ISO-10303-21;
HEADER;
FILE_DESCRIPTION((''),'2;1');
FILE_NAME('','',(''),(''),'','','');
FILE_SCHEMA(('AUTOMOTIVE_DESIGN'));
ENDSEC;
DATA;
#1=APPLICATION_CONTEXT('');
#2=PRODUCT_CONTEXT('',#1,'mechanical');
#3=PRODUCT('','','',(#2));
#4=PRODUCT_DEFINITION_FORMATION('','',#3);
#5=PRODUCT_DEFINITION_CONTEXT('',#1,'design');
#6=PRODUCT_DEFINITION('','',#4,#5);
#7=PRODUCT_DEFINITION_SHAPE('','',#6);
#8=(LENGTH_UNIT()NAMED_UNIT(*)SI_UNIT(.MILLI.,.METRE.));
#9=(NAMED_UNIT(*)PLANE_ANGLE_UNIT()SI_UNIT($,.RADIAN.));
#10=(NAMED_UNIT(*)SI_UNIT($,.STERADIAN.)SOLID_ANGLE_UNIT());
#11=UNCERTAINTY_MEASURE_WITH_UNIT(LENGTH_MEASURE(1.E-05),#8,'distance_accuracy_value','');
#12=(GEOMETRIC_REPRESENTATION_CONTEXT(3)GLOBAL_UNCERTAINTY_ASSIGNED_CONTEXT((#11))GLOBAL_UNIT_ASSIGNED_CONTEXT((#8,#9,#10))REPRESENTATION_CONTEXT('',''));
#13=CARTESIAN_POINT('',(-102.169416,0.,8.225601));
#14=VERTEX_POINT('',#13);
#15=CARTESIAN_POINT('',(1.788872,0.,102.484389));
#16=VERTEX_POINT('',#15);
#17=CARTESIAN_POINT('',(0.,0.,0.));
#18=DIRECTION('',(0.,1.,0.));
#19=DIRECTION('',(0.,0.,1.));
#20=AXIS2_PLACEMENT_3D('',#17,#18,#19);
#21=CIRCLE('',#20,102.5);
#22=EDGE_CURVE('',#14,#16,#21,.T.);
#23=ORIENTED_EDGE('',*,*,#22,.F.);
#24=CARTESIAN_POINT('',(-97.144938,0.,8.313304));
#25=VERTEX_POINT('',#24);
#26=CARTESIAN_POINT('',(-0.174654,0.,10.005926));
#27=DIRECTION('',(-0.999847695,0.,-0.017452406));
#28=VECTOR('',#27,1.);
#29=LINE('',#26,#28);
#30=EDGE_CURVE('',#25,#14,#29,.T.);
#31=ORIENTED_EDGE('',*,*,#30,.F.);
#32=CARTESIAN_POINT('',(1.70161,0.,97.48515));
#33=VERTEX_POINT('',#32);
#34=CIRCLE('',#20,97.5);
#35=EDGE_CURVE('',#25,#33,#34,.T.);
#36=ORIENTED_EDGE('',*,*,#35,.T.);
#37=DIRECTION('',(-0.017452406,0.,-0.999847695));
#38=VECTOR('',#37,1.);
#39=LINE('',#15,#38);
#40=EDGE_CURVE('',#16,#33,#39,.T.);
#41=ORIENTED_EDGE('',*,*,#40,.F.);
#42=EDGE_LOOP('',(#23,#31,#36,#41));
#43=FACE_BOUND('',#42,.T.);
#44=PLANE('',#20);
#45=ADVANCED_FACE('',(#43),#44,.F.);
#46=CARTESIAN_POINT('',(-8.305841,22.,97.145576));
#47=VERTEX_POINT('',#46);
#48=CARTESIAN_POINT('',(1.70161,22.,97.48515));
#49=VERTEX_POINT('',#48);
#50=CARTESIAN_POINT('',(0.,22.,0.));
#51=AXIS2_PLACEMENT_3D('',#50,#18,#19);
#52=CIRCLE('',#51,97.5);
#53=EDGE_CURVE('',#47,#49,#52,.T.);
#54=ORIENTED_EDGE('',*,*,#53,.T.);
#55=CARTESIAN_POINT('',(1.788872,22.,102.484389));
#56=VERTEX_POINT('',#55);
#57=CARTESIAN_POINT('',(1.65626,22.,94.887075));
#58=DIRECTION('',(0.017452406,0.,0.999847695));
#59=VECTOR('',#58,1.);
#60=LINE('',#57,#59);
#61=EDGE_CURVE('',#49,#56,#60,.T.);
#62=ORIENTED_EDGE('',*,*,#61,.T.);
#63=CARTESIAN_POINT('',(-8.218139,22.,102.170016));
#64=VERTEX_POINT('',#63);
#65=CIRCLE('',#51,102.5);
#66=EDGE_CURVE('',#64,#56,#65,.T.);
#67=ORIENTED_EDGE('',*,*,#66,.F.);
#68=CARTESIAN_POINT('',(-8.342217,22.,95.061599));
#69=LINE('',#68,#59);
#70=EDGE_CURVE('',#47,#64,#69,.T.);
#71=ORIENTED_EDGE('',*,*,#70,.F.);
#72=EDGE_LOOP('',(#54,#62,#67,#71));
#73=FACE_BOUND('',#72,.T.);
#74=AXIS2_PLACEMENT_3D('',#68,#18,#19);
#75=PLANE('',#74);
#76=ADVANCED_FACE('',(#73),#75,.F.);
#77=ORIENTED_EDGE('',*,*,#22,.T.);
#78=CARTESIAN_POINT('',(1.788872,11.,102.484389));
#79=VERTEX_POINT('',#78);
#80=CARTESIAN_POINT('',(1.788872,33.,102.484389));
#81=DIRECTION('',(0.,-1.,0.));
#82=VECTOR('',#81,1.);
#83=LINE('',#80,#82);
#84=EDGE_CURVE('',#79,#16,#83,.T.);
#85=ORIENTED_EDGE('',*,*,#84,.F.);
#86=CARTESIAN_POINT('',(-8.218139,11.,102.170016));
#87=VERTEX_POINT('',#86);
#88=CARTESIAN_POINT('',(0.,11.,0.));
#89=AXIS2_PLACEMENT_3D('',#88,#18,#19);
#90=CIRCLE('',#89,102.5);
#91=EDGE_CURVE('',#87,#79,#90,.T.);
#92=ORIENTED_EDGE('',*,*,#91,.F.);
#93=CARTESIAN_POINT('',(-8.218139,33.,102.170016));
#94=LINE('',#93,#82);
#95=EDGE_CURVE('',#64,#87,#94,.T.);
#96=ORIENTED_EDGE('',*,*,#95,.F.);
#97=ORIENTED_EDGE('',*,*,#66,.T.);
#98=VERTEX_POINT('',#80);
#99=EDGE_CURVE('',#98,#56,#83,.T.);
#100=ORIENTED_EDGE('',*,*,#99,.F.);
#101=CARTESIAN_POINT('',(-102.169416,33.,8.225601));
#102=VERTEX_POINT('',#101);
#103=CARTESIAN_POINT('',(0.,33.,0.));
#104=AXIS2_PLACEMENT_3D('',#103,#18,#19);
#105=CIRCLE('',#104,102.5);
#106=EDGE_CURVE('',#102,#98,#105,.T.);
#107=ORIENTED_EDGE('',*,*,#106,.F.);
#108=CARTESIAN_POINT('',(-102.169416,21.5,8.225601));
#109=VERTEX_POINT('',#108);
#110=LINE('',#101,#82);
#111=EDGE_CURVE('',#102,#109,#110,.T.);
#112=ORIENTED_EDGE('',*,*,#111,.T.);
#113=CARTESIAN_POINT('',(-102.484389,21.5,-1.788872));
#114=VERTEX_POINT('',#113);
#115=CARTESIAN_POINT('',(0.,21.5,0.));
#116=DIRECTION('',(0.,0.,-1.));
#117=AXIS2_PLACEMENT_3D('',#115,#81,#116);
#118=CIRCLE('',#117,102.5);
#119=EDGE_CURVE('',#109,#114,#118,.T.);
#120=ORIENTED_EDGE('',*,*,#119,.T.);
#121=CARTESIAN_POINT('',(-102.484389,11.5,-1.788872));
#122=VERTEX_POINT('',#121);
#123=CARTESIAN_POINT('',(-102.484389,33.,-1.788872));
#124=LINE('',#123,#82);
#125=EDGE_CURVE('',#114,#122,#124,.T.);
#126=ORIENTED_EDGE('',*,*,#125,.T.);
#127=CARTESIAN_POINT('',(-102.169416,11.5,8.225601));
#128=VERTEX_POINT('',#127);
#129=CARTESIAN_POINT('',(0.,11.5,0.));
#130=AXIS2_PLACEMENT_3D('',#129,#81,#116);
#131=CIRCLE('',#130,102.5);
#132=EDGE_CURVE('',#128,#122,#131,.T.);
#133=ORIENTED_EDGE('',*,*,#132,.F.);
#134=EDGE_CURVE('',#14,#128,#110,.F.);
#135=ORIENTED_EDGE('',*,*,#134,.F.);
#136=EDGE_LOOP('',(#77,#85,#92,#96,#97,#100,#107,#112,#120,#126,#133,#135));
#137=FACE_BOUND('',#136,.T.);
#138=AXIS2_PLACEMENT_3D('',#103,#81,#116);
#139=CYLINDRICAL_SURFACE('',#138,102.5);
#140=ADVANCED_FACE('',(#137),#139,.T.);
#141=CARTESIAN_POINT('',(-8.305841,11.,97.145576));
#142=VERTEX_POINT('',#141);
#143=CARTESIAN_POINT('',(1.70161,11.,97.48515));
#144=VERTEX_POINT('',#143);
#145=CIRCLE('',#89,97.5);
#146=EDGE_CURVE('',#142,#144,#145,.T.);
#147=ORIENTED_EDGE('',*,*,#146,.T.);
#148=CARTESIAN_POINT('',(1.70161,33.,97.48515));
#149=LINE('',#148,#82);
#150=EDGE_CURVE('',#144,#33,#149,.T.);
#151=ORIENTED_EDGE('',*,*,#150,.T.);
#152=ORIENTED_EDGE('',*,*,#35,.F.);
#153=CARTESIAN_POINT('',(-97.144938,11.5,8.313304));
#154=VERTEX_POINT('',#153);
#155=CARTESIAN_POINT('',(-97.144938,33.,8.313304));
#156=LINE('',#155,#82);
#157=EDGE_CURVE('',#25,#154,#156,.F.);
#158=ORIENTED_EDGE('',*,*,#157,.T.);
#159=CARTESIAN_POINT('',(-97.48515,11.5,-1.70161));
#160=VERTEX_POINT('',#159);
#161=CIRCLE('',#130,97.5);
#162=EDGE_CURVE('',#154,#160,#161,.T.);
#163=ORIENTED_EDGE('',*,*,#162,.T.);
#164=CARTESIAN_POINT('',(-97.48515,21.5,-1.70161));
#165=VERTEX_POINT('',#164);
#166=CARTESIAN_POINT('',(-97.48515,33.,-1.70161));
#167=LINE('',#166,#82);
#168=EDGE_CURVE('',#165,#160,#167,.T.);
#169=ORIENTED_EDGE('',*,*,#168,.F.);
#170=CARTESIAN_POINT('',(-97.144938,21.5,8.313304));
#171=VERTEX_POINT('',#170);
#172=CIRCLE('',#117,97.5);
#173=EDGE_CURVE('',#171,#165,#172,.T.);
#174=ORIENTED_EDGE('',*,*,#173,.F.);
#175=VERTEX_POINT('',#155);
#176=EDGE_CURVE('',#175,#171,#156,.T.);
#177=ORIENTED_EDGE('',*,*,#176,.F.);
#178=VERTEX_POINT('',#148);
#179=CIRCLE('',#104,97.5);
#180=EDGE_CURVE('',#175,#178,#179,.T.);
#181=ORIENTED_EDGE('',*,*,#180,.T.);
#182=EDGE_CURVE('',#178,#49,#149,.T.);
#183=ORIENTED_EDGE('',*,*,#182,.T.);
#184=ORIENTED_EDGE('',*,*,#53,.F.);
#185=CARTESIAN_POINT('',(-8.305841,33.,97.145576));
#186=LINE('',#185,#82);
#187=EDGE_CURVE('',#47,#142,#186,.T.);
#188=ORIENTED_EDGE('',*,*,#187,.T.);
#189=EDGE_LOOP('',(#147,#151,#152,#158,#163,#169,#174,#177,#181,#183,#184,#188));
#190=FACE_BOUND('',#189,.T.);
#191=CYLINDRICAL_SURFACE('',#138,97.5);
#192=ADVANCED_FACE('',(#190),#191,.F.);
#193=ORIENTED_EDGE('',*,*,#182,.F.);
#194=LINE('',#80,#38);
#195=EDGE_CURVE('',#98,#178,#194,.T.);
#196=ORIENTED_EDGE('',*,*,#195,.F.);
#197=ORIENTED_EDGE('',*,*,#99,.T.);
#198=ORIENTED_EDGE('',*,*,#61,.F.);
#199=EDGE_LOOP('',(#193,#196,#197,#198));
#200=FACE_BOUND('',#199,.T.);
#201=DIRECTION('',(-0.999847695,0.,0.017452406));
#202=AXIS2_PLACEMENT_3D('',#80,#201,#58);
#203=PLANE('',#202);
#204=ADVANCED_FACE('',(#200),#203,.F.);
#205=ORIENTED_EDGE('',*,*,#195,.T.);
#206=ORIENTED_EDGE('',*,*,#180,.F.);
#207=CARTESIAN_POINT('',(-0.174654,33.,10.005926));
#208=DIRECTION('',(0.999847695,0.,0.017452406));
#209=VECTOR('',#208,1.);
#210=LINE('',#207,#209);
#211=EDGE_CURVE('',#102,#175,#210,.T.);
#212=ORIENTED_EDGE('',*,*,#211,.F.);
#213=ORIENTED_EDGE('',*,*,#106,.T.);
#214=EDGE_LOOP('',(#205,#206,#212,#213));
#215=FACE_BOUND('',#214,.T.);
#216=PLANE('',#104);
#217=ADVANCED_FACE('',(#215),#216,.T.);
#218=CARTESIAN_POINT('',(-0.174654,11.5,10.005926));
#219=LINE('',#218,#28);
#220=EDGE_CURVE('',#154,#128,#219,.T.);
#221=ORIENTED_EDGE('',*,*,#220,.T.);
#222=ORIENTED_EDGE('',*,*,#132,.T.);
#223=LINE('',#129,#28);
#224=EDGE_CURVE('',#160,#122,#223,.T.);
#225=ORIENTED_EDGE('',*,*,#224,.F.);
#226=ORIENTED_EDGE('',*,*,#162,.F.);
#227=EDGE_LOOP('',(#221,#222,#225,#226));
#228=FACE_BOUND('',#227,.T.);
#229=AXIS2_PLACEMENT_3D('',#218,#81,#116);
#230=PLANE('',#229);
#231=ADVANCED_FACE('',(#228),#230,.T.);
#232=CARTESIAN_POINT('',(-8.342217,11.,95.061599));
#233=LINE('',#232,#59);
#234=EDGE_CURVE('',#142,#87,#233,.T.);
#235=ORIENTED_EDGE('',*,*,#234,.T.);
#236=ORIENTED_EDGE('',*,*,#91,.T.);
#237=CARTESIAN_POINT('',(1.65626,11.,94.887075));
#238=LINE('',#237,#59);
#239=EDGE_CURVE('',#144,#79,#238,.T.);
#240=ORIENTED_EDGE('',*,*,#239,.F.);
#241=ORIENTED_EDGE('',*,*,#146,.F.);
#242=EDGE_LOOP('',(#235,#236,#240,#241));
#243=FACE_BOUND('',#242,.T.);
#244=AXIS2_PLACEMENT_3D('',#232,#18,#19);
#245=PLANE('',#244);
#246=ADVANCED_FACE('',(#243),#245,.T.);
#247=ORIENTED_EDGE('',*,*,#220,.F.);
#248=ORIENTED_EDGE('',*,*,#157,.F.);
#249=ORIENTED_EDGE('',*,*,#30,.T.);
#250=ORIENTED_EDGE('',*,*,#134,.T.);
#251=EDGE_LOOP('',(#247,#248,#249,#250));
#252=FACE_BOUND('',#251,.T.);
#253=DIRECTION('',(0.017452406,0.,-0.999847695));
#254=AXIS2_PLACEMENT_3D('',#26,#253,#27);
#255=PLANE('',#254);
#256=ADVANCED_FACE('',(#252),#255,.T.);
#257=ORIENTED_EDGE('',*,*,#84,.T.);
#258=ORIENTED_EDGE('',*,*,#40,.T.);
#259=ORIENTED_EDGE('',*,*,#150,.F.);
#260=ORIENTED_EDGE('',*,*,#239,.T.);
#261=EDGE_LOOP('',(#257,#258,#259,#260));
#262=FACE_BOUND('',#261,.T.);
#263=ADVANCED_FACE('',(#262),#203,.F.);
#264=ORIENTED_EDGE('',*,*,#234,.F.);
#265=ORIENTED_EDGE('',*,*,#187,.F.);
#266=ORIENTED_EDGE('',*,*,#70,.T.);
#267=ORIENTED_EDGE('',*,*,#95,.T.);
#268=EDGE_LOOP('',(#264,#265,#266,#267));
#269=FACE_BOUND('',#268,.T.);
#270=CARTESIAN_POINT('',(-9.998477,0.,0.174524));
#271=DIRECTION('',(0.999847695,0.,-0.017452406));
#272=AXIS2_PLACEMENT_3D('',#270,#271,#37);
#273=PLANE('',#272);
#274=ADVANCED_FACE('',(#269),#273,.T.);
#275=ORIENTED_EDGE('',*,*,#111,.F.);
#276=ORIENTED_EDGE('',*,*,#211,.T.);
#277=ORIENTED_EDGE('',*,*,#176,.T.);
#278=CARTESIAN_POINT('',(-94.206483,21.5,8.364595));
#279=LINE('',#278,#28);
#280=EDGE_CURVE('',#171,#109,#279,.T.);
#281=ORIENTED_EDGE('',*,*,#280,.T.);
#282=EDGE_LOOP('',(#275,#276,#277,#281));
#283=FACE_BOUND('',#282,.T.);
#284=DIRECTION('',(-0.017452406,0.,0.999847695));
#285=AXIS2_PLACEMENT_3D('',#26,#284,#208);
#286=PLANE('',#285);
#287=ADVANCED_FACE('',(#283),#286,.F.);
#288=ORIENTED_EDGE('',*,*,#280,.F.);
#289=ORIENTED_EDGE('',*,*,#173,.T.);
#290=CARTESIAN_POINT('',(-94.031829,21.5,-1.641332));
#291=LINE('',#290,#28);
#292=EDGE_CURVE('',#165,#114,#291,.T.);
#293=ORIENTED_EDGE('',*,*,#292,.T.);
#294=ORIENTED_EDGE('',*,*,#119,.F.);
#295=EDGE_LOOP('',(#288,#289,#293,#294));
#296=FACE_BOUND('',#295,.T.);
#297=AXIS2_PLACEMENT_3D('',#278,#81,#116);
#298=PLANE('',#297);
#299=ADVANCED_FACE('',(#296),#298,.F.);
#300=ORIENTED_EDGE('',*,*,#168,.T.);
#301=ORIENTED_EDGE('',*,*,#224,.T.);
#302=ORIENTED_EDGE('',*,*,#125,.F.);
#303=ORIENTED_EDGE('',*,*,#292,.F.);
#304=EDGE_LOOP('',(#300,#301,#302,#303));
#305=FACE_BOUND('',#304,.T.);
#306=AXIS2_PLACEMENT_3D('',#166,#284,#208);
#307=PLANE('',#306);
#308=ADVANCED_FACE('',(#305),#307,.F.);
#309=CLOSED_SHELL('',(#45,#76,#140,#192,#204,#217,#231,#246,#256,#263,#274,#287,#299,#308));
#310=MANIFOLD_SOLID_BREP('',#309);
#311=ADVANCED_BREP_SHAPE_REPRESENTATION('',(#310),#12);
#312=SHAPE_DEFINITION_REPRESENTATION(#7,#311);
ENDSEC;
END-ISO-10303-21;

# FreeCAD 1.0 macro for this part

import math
import FreeCAD as App
import Part
import Sketcher

V = App.Vector
Q = App.Units.Quantity


def add_polygon(sketch, points):
    """Adds a closed chain of lines whose ends are joined by coincident constraints."""
    first, n = sketch.GeometryCount, len(points)
    for a, b in zip(points, points[1:] + points[:1]):
        sketch.addGeometry(Part.LineSegment(App.Vector(*a, 0), App.Vector(*b, 0)), False)
    for i in range(n):
        sketch.addConstraint(Sketcher.Constraint("Coincident", first + i, 2, first + (i + 1) % n, 1))

doc = App.newDocument("Part")
body = doc.addObject("PartDesign::Body", "Body")

sketch1 = doc.addObject("Sketcher::SketchObject", "Sketch")
body.addObject(sketch1)
sketch1.AttachmentSupport = (doc.XZ_Plane, [""])
sketch1.MapMode = "FlatFace"
sketch1.addGeometry([
    Part.LineSegment(V(-97, -2, 0), V(-102, -2, 0)),
    Part.ArcOfCircle(Part.Circle(V(0, 0, 0), V(0, 0, 1), 102), math.radians(89), math.radians(181)),
    Part.LineSegment(V(2, 102, 0), V(2, 97, 0)),
    Part.ArcOfCircle(Part.Circle(V(0, 0, 0), V(0, 0, 1), 98), math.radians(89), math.radians(181)),
], False)
sketch1.addConstraint([
    Sketcher.Constraint("Coincident", 0, 2, 1, 2),
    Sketcher.Constraint("Coincident", 1, 1, 2, 1),
    Sketcher.Constraint("Coincident", 2, 2, 3, 1),
    Sketcher.Constraint("Coincident", 3, 2, 0, 1),
    Sketcher.Constraint("Coincident", 1, 3, -1, 1),
    Sketcher.Constraint("Coincident", 3, 3, -1, 1),
    Sketcher.Constraint("Radius", 1, 102.5),
    Sketcher.Constraint("Radius", 3, 97.5),
    Sketcher.Constraint("Angle", 0, Q("-179 deg")),
    Sketcher.Constraint("Angle", 2, Q("-91 deg")),
    Sketcher.Constraint("DistanceX", 0, 2, 2, 2, 104.185998),
    Sketcher.Constraint("DistanceY", 3, 2, 1, 1, 104.185998),
])
pad1 = doc.addObject("PartDesign::Pad", "Pad")
body.addObject(pad1)
pad1.Profile = sketch1
pad1.Length = 33
pad1.Reversed = True

sketch2 = doc.addObject("Sketcher::SketchObject", "Sketch001")
body.addObject(sketch2)
sketch2.Placement = App.Placement(V(0, 0, 0), App.Rotation(V(-0.017452406, 0, -0.999847695), V(0, 1, 0), V(0.999847695, 0, -0.017452406), "ZXY"))
add_polygon(sketch2, [(-105, 22), (-105, 11), (-95, 11), (-95, 22)])
sketch2.addConstraint([
    Sketcher.Constraint("Vertical", 0),
    Sketcher.Constraint("Horizontal", 1),
    Sketcher.Constraint("Vertical", 2),
    Sketcher.Constraint("Horizontal", 3),
    Sketcher.Constraint("DistanceY", 0, 2, 0, 1, 11.0),
    Sketcher.Constraint("DistanceY", -1, 1, 0, 2, 11.0),
    Sketcher.Constraint("DistanceX", 1, 1, 1, 2, 10.196943),
    Sketcher.Constraint("DistanceX", 0, 2, -1, 1, 105.098471),
])
pocket1 = doc.addObject("PartDesign::Pocket", "Pocket")
body.addObject(pocket1)
pocket1.Profile = sketch2
pocket1.Length = 10

sketch3 = doc.addObject("Sketcher::SketchObject", "Sketch002")
body.addObject(sketch3)
sketch3.Placement = App.Placement(V(0, 0, 0), App.Rotation(V(-0.999847695, 0, -0.017452406), V(0, 1, 0), V(0.017452406, 0, -0.999847695), "ZXY"))
add_polygon(sketch3, [(106, 0), (106, 11), (94, 11), (94, 0)])
add_polygon(sketch3, [(94, 33), (94, 21), (106, 21), (106, 33)])
sketch3.addConstraint([
    Sketcher.Constraint("Vertical", 0),
    Sketcher.Constraint("Horizontal", 1),
    Sketcher.Constraint("Vertical", 2),
    Sketcher.Constraint("Horizontal", 3),
    Sketcher.Constraint("Vertical", 4),
    Sketcher.Constraint("Horizontal", 5),
    Sketcher.Constraint("Vertical", 6),
    Sketcher.Constraint("Horizontal", 7),
    Sketcher.Constraint("PointOnObject", 2, 2, -1),
    Sketcher.Constraint("Vertical", 2, 2, 4, 2),
    Sketcher.Constraint("Vertical", 3, 2, 5, 2),
    Sketcher.Constraint("Equal", 2, 4),
    Sketcher.Constraint("DistanceY", 0, 1, 0, 2, 11.5),
    Sketcher.Constraint("DistanceY", -1, 1, 6, 2, 33.0),
    Sketcher.Constraint("DistanceX", 1, 2, 1, 1, 11.907695),
    Sketcher.Constraint("DistanceX", -1, 1, 0, 2, 105.953847),
])
pocket2 = doc.addObject("PartDesign::Pocket", "Pocket001")
body.addObject(pocket2)
pocket2.Profile = sketch3
pocket2.Length = 10.007451

doc.recompute()
